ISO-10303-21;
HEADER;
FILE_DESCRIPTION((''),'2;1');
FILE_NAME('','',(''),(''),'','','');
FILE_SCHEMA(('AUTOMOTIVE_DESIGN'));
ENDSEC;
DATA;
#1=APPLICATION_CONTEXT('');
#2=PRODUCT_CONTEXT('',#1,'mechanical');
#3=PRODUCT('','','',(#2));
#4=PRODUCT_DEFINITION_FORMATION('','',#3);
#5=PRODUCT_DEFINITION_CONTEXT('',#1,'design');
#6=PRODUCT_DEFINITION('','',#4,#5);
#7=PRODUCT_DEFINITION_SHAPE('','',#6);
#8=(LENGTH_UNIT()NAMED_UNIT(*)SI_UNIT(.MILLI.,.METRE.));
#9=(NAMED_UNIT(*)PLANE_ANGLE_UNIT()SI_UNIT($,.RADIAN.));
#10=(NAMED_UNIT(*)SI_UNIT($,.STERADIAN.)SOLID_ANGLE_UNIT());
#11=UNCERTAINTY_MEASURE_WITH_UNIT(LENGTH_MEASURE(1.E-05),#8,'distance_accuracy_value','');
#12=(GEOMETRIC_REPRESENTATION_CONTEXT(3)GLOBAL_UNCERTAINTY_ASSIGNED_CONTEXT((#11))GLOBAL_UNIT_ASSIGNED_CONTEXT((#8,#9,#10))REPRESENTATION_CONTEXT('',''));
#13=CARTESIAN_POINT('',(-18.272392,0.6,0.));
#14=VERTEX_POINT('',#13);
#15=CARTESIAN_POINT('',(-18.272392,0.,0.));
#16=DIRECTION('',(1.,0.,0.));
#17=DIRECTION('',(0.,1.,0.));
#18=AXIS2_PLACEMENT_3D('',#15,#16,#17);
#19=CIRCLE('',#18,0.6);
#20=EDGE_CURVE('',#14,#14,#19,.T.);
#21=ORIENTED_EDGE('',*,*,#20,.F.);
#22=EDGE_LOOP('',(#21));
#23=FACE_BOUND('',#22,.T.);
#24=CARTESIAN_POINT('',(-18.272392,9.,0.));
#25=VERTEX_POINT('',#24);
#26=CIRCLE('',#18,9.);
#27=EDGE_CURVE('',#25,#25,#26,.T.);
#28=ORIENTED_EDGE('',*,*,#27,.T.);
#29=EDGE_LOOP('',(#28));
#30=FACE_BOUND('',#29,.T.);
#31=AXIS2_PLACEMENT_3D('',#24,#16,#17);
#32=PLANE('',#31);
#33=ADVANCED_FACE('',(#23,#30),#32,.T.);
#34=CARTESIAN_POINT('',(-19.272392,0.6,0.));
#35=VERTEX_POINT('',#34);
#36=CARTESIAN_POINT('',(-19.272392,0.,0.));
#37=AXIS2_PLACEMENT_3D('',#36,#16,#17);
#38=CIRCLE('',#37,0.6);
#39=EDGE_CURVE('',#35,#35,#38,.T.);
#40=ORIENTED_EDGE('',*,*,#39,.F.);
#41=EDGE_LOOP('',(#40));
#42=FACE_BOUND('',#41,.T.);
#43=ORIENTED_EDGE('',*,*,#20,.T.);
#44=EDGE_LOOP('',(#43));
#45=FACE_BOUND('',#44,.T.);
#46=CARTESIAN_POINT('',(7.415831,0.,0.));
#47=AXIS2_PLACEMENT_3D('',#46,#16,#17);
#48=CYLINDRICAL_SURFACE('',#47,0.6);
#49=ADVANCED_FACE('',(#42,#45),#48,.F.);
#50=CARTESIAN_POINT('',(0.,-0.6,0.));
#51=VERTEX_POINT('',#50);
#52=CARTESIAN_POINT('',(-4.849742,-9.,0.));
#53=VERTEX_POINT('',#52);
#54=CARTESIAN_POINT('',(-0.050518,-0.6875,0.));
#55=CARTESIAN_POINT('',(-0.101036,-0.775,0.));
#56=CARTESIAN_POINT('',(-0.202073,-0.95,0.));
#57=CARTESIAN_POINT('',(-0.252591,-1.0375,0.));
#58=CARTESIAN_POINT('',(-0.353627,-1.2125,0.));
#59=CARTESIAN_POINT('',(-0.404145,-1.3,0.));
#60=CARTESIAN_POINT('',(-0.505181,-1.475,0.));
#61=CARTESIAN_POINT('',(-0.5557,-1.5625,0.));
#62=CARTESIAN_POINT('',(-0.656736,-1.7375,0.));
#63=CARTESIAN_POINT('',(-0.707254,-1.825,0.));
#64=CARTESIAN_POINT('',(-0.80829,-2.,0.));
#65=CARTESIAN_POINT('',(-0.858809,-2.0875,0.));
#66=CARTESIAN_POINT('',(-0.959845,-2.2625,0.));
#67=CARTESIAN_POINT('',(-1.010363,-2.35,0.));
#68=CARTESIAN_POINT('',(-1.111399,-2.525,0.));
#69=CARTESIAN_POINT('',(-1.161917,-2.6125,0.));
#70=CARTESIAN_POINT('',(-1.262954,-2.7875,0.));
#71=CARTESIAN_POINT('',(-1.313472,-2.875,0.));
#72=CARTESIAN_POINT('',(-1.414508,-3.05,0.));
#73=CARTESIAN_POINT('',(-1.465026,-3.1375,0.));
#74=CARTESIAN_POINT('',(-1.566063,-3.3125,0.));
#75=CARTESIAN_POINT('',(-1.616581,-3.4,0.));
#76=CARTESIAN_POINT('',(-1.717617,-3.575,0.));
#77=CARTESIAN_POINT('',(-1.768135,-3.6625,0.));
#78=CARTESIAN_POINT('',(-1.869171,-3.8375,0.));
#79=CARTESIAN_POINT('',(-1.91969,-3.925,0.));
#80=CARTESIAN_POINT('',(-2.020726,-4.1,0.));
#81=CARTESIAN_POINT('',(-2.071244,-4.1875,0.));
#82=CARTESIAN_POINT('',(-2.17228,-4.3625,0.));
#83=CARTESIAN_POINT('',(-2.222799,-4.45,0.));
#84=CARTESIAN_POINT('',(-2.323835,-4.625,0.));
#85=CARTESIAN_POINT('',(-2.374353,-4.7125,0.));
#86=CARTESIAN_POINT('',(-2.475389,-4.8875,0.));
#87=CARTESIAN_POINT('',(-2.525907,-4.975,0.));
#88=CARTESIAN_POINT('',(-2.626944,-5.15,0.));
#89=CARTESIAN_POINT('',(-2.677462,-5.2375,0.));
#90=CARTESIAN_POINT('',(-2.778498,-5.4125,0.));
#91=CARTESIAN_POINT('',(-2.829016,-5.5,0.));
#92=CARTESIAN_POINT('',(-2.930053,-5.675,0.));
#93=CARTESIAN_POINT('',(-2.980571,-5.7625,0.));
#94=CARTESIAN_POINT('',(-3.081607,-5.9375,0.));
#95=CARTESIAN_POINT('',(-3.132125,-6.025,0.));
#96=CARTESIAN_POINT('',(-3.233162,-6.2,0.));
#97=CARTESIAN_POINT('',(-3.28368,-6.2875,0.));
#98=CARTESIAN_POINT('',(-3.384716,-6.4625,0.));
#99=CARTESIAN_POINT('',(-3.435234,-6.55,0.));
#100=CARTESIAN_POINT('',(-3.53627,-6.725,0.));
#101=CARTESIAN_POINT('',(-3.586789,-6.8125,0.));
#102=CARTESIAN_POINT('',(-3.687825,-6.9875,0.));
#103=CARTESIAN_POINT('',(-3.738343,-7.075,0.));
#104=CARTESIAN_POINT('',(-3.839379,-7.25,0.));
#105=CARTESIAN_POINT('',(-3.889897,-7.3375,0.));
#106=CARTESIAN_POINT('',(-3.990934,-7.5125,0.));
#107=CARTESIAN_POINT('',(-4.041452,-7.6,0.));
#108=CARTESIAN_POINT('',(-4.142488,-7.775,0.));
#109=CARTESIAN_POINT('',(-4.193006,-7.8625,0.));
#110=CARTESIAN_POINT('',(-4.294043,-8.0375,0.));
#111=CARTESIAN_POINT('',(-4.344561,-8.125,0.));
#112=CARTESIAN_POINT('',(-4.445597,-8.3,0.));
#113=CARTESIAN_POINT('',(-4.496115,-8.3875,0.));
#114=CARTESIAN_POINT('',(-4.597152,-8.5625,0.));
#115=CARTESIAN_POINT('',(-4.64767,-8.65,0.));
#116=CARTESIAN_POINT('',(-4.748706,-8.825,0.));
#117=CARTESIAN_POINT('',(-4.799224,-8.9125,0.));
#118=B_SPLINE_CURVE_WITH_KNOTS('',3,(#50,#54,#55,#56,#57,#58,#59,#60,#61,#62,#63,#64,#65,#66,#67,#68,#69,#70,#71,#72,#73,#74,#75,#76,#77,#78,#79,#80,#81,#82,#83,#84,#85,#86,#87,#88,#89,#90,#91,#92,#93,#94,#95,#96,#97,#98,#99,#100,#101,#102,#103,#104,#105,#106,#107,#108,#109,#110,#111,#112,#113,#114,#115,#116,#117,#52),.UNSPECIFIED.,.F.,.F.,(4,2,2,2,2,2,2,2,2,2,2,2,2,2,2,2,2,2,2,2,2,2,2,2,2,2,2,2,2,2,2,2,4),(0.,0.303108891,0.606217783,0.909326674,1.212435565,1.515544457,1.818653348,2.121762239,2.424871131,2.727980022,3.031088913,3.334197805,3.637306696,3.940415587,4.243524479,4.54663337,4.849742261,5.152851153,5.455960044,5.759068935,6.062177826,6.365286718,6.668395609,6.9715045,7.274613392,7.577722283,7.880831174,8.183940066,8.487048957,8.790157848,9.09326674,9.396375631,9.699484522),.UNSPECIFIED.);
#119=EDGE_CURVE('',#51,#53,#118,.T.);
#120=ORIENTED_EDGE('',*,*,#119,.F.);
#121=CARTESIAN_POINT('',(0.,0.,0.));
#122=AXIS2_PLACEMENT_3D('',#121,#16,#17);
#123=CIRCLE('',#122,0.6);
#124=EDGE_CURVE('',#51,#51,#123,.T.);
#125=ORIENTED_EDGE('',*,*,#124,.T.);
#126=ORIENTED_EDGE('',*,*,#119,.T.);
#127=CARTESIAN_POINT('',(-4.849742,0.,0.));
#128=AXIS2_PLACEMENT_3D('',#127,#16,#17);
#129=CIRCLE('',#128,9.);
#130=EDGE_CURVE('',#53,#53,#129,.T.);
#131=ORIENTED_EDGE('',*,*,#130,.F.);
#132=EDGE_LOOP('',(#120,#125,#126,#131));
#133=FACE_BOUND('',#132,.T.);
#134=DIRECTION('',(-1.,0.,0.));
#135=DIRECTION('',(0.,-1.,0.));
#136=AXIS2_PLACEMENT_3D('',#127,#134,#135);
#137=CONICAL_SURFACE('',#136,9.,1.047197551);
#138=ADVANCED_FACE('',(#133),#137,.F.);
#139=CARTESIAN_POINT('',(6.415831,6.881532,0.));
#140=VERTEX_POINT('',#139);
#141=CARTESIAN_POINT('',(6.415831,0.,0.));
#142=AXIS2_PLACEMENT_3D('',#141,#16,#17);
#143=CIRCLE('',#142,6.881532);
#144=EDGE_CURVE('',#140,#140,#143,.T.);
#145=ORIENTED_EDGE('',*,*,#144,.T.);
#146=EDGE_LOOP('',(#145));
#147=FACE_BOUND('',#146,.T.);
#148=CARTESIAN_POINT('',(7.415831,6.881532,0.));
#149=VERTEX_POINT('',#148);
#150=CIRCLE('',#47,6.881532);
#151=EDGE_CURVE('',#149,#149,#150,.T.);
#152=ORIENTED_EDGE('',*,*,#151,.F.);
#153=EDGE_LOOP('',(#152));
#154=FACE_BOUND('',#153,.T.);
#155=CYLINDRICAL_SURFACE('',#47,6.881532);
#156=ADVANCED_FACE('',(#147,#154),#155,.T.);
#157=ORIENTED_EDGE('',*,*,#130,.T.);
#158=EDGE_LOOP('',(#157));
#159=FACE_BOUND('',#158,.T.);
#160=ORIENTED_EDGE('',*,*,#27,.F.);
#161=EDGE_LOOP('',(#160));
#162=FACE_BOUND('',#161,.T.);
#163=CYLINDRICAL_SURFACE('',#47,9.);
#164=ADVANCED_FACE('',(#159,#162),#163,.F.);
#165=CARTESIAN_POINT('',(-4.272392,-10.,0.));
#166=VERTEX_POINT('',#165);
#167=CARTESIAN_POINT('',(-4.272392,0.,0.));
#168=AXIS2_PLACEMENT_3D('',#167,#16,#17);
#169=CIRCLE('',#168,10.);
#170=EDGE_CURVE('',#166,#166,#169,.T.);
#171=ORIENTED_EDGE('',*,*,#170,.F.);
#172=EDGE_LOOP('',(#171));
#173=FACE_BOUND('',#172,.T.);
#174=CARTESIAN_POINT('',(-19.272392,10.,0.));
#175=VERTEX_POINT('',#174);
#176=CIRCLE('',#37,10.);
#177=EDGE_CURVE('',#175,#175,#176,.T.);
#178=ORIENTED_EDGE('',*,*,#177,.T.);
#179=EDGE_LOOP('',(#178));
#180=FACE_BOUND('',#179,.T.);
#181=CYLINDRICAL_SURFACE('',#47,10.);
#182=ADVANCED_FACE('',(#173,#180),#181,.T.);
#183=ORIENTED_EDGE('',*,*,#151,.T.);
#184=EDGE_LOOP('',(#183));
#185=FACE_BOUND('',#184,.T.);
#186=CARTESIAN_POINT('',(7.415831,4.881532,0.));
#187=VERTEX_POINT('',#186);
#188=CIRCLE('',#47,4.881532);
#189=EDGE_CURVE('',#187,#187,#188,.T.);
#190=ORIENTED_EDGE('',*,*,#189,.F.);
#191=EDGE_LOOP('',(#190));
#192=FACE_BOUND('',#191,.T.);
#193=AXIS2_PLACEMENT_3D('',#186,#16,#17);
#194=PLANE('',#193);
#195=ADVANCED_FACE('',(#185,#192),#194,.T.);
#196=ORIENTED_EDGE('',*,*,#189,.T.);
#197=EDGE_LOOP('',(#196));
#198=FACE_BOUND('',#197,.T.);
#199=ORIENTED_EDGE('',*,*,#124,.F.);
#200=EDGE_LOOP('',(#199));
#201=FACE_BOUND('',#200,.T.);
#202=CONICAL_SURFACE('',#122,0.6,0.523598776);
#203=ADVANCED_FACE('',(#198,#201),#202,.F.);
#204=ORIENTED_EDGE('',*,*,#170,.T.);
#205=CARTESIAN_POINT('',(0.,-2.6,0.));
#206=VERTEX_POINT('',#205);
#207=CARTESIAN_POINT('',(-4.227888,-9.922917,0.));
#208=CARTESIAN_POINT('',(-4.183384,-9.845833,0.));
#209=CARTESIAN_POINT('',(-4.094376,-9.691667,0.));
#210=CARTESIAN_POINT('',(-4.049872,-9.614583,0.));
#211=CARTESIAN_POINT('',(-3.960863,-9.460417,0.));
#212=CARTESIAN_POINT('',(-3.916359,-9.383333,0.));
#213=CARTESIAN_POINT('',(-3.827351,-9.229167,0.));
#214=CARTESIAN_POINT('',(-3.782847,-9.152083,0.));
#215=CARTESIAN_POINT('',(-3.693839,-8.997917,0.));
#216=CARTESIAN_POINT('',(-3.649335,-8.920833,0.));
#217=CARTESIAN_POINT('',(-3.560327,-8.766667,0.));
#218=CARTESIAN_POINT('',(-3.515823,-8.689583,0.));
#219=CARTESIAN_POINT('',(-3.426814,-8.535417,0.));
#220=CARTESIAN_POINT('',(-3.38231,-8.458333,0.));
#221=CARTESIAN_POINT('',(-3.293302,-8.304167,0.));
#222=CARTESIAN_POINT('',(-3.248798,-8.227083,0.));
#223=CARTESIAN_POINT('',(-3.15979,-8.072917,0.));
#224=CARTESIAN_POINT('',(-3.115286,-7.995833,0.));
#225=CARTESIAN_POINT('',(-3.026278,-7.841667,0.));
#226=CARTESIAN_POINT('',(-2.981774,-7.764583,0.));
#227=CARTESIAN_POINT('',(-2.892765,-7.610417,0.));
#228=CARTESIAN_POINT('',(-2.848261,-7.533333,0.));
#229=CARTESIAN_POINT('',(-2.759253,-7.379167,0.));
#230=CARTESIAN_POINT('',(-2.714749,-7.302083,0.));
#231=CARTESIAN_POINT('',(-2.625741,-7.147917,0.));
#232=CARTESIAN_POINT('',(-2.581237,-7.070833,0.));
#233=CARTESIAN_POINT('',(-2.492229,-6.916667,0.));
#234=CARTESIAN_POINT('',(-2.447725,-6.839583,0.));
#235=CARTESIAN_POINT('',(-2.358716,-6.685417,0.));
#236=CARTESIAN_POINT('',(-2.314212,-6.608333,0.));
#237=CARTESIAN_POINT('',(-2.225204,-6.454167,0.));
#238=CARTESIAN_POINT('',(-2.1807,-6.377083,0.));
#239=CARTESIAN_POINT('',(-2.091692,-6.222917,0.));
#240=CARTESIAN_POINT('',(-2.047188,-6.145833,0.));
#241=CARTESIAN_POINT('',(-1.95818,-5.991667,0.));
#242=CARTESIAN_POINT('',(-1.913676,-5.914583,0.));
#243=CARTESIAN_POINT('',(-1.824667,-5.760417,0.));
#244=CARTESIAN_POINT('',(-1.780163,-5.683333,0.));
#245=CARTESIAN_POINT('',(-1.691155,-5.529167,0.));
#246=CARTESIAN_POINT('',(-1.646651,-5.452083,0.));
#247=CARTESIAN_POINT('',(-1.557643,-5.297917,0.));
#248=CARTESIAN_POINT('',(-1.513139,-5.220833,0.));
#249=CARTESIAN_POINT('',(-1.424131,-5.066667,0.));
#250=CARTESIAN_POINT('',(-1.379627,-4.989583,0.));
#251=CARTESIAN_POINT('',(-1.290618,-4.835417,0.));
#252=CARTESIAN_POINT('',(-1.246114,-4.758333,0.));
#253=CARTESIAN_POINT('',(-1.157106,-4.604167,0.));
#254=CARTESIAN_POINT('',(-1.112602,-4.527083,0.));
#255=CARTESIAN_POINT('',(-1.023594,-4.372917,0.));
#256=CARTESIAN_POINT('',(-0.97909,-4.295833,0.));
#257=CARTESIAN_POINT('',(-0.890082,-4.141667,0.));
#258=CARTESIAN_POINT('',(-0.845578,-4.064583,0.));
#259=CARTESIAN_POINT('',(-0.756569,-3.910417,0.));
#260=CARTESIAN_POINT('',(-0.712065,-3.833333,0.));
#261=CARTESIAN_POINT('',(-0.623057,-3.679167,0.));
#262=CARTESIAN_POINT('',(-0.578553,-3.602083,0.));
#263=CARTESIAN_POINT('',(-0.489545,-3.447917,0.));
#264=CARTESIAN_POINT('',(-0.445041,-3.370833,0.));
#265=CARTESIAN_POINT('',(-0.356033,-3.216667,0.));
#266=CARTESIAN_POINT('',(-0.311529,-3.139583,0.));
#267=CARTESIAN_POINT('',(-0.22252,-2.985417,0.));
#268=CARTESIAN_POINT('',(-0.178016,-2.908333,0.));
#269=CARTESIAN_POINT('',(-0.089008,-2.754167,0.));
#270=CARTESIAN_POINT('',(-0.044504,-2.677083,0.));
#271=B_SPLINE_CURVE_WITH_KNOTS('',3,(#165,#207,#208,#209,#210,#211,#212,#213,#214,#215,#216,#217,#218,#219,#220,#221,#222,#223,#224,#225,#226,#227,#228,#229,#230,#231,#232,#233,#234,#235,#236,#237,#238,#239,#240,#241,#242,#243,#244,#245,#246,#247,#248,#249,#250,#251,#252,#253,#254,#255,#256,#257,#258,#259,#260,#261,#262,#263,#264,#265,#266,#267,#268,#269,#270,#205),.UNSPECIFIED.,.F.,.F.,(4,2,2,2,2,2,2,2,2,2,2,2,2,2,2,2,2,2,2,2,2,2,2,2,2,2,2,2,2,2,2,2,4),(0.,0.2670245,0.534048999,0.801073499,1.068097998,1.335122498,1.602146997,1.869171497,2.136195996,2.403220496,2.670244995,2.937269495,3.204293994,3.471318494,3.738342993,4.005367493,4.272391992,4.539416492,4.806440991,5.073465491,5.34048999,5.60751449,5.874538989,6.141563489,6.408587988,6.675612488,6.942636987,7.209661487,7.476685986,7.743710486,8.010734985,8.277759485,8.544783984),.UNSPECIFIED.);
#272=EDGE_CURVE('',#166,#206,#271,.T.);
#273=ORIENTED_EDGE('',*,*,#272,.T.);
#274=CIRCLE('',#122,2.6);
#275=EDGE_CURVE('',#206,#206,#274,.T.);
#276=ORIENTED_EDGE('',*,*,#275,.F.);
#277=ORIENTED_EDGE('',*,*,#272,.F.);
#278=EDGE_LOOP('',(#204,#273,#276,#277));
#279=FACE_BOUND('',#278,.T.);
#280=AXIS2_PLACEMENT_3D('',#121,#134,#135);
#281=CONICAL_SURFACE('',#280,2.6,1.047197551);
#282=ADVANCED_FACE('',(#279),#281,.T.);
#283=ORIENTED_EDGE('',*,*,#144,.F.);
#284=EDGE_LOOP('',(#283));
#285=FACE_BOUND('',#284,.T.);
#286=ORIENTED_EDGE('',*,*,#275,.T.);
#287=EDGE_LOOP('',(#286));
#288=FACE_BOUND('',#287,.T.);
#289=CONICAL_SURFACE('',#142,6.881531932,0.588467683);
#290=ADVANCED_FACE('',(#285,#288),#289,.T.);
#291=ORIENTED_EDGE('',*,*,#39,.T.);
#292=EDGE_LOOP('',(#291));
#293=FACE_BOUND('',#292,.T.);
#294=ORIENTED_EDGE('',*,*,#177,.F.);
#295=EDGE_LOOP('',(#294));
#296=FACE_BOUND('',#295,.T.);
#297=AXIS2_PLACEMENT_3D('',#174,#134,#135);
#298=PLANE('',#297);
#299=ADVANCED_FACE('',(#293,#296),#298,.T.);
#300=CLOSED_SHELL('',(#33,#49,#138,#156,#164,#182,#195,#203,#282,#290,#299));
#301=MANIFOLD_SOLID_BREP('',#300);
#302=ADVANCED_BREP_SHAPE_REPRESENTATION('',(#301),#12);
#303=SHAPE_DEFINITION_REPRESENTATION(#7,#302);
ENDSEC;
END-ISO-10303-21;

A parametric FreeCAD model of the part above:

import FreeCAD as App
import Part
import Sketcher

V = App.Vector
Q = App.Units.Quantity

doc = App.newDocument("Part")
body = doc.addObject("PartDesign::Body", "Body")

sketch1 = body.newObject("Sketcher::SketchObject", "Sketch")
sketch1.AttachmentSupport = (doc.getObject("XY_Plane"), [""])
sketch1.MapMode = "FlatFace"
sketch1.addGeometry([
    Part.LineSegment(V(0, 0.6, 0), V(7.415831, 4.881532, 0)),
    Part.LineSegment(V(7.415831, 4.881532, 0), V(7.415831, 6.881532, 0)),
    Part.LineSegment(V(7.415831, 6.881532, 0), V(6.415831, 6.881532, 0)),
    Part.LineSegment(V(6.415831, 6.881532, 0), V(0, 2.6, 0)),
    Part.LineSegment(V(0, 2.6, 0), V(-4.272392, 10, 0)),
    Part.LineSegment(V(-4.272392, 10, 0), V(-19.272392, 10, 0)),
    Part.LineSegment(V(-19.272392, 10, 0), V(-19.272392, 0.6, 0)),
    Part.LineSegment(V(-19.272392, 0.6, 0), V(-18.272392, 0.6, 0)),
    Part.LineSegment(V(-18.272392, 0.6, 0), V(-18.272392, 9, 0)),
    Part.LineSegment(V(-18.272392, 9, 0), V(-4.849742, 9, 0)),
    Part.LineSegment(V(-4.849742, 9, 0), V(0, 0.6, 0)),
], False)
sketch1.addConstraint([
    Sketcher.Constraint("Coincident", 0, 2, 1, 1),
    Sketcher.Constraint("Coincident", 1, 2, 2, 1),
    Sketcher.Constraint("Coincident", 2, 2, 3, 1),
    Sketcher.Constraint("Coincident", 3, 2, 4, 1),
    Sketcher.Constraint("Coincident", 4, 2, 5, 1),
    Sketcher.Constraint("Coincident", 5, 2, 6, 1),
    Sketcher.Constraint("Coincident", 6, 2, 7, 1),
    Sketcher.Constraint("Coincident", 7, 2, 8, 1),
    Sketcher.Constraint("Coincident", 8, 2, 9, 1),
    Sketcher.Constraint("Coincident", 9, 2, 10, 1),
    Sketcher.Constraint("Coincident", 10, 2, 0, 1),
    Sketcher.Constraint("Vertical", 1),
    Sketcher.Constraint("Horizontal", 2),
    Sketcher.Constraint("Horizontal", 5),
    Sketcher.Constraint("Vertical", 6),
    Sketcher.Constraint("Horizontal", 7),
    Sketcher.Constraint("Vertical", 8),
    Sketcher.Constraint("Horizontal", 9),
    Sketcher.Constraint("PointOnObject", 3, 2, -2),
    Sketcher.Constraint("PointOnObject", 10, 2, -2),
    Sketcher.Constraint("Perpendicular", 0, 4),
    Sketcher.Constraint("Parallel", 4, 10),
    Sketcher.Constraint("Horizontal", 7, 2, 10, 2),
    Sketcher.Constraint("Equal", 2, 7),
    Sketcher.Constraint("DistanceX", 2, 2, 2, 1, 1.0),
    Sketcher.Constraint("DistanceX", 5, 2, 5, 1, 15.0),
    Sketcher.Constraint("DistanceY", 1, 1, 1, 2, 2.0),
    Sketcher.Constraint("Angle", 0, Q("30 deg")),
    Sketcher.Constraint("DistanceY", 6, 2, 6, 1, 9.4),
    Sketcher.Constraint("DistanceY", 8, 1, 8, 2, 8.4),
    Sketcher.Constraint("DistanceY", -1, 1, 4, 2, 10.0),
    Sketcher.Constraint("DistanceY", 6, 2, 3, 2, 2.0),
    Sketcher.Constraint("Distance", 3, 7.713261),
])
revolution = body.newObject("PartDesign::Revolution", "Revolution")
revolution.Profile = sketch1
revolution.ReferenceAxis = (sketch1, ["H_Axis"])
revolution.Angle = 360

doc.recompute()
